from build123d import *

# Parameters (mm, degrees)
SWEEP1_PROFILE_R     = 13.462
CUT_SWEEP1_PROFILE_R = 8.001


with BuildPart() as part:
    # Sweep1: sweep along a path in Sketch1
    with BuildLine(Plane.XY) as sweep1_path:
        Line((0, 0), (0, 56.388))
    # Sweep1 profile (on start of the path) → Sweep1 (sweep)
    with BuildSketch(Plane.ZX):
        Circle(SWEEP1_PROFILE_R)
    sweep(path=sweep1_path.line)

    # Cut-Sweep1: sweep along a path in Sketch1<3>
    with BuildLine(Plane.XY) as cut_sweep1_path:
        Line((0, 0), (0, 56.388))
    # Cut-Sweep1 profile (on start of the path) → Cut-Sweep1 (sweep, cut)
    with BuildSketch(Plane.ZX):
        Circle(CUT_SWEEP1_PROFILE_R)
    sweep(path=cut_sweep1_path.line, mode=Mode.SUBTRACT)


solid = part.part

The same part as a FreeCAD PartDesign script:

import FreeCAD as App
import Part
import Sketcher
from FreeCAD import Vector
Q = App.Units.Quantity

doc = App.newDocument("Part")
params = doc.addObject("Spreadsheet::Sheet", "Params")
for row, (alias, value) in enumerate([
    ("sketch1_diameter", "1.06 in"),
    ("sketch2_height", "2.22 in"),
    ("sketch3_diameter", "0.63 in"),
    ("sketch4_height", "2.22 in"),
], start=1):
    params.set(f"A{row}", alias)
    params.set(f"B{row}", "=" + value)
    params.setAlias(f"B{row}", alias)

body = doc.addObject("PartDesign::Body", "Body")

# Sketch on XZ plane
sketch1 = body.newObject("Sketcher::SketchObject", "Sketch")
sketch1.AttachmentSupport = (doc.getObject("XZ_Plane"), [""])
sketch1.MapMode = "FlatFace"
sketch1.addGeometry(Part.Circle(Vector(0, 0, 0), Vector(0, 0, 1), 13), False)
sketch1.addConstraint([
    Sketcher.Constraint("Coincident", 0, 3, -1, 1),
    Sketcher.Constraint("Diameter", 0, Q("1.06 in")),
])
sketch1.setExpression("Constraints[1]", "Params.sketch1_diameter")

# Sketch on XY plane
sketch2 = body.newObject("Sketcher::SketchObject", "Sketch001")
sketch2.AttachmentSupport = (doc.getObject("XY_Plane"), [""])
sketch2.MapMode = "FlatFace"
sketch2.addGeometry(Part.LineSegment(Vector(0, 0, 0), Vector(0, 56, 0)), False)
sketch2.addConstraint([
    Sketcher.Constraint("Vertical", 0),
    Sketcher.Constraint("Coincident", 0, 1, -1, 1),
    Sketcher.Constraint("DistanceY", 0, 1, 0, 2, Q("2.22 in")),
])
sketch2.setExpression("Constraints[2]", "Params.sketch2_height")
doc.recompute()

additivepipe = body.newObject("PartDesign::AdditivePipe", "AdditivePipe")
additivepipe.Profile = sketch1
additivepipe.Spine = (sketch2, ["Edge1"])

# Sketch on XZ plane
sketch3 = body.newObject("Sketcher::SketchObject", "Sketch002")
sketch3.AttachmentSupport = (doc.getObject("XZ_Plane"), [""])
sketch3.MapMode = "FlatFace"
sketch3.addGeometry(Part.Circle(Vector(0, 0, 0), Vector(0, 0, 1), 8), False)
sketch3.addConstraint([
    Sketcher.Constraint("Coincident", 0, 3, -1, 1),
    Sketcher.Constraint("Diameter", 0, Q("0.63 in")),
])
sketch3.setExpression("Constraints[1]", "Params.sketch3_diameter")

# Sketch on XY plane
sketch4 = body.newObject("Sketcher::SketchObject", "Sketch003")
sketch4.AttachmentSupport = (doc.getObject("XY_Plane"), [""])
sketch4.MapMode = "FlatFace"
sketch4.addGeometry(Part.LineSegment(Vector(0, 0, 0), Vector(0, 56, 0)), False)
sketch4.addConstraint([
    Sketcher.Constraint("Vertical", 0),
    Sketcher.Constraint("Coincident", 0, 1, -1, 1),
    Sketcher.Constraint("DistanceY", 0, 1, 0, 2, Q("2.22 in")),
])
sketch4.setExpression("Constraints[2]", "Params.sketch4_height")
doc.recompute()

subtractivepipe = body.newObject("PartDesign::SubtractivePipe", "SubtractivePipe")
subtractivepipe.Profile = sketch3
subtractivepipe.Spine = (sketch4, ["Edge1"])

doc.recompute()
